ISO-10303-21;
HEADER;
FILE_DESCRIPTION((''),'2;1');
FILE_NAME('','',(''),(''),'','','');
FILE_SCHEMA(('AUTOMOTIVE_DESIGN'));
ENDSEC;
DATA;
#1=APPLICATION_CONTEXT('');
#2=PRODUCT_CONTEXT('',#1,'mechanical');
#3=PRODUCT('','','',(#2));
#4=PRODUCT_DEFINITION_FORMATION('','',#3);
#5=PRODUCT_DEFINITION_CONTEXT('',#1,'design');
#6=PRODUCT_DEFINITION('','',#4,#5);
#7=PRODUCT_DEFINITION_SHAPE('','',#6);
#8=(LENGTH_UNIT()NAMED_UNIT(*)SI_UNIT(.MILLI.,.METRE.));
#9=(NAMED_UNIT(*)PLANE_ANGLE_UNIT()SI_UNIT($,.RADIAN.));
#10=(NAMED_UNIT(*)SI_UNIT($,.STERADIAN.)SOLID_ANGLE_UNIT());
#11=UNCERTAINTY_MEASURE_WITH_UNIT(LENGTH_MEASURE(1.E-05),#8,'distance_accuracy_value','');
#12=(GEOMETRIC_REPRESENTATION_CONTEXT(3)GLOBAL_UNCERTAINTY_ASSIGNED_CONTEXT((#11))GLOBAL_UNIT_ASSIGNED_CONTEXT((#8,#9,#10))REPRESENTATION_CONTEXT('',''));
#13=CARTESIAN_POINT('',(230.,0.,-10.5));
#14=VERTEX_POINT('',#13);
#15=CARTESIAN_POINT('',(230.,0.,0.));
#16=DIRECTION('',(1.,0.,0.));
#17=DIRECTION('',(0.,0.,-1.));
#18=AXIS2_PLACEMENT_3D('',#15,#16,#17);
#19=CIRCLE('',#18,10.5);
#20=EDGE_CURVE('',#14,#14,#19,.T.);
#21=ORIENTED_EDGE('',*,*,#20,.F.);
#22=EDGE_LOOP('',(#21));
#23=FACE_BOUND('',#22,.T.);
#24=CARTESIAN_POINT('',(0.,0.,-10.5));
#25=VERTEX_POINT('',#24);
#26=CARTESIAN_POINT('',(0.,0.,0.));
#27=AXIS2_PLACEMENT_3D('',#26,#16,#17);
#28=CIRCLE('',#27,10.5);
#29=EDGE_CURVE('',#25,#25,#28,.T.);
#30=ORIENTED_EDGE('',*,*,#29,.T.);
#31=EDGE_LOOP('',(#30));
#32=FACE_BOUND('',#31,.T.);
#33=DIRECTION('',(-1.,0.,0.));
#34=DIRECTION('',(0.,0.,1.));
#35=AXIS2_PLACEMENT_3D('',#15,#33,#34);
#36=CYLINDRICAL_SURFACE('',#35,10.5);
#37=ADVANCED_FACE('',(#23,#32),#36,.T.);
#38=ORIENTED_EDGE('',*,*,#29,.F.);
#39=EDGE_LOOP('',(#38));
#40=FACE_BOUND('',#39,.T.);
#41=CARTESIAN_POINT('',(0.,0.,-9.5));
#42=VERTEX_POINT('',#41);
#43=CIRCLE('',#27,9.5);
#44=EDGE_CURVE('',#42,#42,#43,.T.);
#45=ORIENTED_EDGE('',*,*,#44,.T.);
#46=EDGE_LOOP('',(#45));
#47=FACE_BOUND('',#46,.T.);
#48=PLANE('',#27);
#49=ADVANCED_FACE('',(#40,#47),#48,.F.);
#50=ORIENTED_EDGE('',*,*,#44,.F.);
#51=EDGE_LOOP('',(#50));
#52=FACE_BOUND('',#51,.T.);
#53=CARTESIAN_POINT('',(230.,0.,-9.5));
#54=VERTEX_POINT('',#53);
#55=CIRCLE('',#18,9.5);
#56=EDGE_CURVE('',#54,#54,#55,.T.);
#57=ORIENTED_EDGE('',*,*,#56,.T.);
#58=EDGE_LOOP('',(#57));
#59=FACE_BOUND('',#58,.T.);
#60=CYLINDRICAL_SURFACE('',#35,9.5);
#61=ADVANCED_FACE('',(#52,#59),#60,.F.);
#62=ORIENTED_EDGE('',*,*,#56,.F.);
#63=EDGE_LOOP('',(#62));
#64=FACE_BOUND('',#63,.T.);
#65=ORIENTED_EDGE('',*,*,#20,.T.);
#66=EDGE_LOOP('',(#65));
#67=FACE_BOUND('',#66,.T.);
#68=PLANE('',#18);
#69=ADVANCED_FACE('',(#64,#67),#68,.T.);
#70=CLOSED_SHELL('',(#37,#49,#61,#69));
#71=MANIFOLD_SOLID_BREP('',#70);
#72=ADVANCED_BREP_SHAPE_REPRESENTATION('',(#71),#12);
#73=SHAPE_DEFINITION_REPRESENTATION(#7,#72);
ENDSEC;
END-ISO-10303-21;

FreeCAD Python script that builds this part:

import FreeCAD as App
import Part
import Sketcher
from FreeCAD import Vector

doc = App.newDocument("Part")
params = doc.addObject("Spreadsheet::Sheet", "Params")
for row, (alias, value) in enumerate([
    ("sketch1_diameter", "21 mm"),
    ("sketch1_diameter2", "19 mm"),
    ("pad1_length", "230 mm"),
], start=1):
    params.set(f"A{row}", alias)
    params.set(f"B{row}", "=" + value)
    params.setAlias(f"B{row}", alias)

body = doc.addObject("PartDesign::Body", "Body")

# Sketch on YZ plane
sketch1 = body.newObject("Sketcher::SketchObject", "Sketch")
sketch1.AttachmentSupport = (doc.getObject("YZ_Plane"), [""])
sketch1.MapMode = "FlatFace"
sketch1.addGeometry([
    Part.Circle(Vector(0, 0, 0), Vector(0, 0, 1), 10),
    Part.Circle(Vector(0, 0, 0), Vector(0, 0, 1), 10),
], False)
sketch1.addConstraint([
    Sketcher.Constraint("Coincident", 0, 3, -1, 1),
    Sketcher.Constraint("Coincident", 1, 3, -1, 1),
    Sketcher.Constraint("Diameter", 0, 21.0),
    Sketcher.Constraint("Diameter", 1, 19.0),
])
sketch1.setExpression("Constraints[2]", "Params.sketch1_diameter")
sketch1.setExpression("Constraints[3]", "Params.sketch1_diameter2")
pad1 = body.newObject("PartDesign::Pad", "Pad")
pad1.Profile = sketch1
pad1.setExpression("Length", "Params.pad1_length")

doc.recompute()
